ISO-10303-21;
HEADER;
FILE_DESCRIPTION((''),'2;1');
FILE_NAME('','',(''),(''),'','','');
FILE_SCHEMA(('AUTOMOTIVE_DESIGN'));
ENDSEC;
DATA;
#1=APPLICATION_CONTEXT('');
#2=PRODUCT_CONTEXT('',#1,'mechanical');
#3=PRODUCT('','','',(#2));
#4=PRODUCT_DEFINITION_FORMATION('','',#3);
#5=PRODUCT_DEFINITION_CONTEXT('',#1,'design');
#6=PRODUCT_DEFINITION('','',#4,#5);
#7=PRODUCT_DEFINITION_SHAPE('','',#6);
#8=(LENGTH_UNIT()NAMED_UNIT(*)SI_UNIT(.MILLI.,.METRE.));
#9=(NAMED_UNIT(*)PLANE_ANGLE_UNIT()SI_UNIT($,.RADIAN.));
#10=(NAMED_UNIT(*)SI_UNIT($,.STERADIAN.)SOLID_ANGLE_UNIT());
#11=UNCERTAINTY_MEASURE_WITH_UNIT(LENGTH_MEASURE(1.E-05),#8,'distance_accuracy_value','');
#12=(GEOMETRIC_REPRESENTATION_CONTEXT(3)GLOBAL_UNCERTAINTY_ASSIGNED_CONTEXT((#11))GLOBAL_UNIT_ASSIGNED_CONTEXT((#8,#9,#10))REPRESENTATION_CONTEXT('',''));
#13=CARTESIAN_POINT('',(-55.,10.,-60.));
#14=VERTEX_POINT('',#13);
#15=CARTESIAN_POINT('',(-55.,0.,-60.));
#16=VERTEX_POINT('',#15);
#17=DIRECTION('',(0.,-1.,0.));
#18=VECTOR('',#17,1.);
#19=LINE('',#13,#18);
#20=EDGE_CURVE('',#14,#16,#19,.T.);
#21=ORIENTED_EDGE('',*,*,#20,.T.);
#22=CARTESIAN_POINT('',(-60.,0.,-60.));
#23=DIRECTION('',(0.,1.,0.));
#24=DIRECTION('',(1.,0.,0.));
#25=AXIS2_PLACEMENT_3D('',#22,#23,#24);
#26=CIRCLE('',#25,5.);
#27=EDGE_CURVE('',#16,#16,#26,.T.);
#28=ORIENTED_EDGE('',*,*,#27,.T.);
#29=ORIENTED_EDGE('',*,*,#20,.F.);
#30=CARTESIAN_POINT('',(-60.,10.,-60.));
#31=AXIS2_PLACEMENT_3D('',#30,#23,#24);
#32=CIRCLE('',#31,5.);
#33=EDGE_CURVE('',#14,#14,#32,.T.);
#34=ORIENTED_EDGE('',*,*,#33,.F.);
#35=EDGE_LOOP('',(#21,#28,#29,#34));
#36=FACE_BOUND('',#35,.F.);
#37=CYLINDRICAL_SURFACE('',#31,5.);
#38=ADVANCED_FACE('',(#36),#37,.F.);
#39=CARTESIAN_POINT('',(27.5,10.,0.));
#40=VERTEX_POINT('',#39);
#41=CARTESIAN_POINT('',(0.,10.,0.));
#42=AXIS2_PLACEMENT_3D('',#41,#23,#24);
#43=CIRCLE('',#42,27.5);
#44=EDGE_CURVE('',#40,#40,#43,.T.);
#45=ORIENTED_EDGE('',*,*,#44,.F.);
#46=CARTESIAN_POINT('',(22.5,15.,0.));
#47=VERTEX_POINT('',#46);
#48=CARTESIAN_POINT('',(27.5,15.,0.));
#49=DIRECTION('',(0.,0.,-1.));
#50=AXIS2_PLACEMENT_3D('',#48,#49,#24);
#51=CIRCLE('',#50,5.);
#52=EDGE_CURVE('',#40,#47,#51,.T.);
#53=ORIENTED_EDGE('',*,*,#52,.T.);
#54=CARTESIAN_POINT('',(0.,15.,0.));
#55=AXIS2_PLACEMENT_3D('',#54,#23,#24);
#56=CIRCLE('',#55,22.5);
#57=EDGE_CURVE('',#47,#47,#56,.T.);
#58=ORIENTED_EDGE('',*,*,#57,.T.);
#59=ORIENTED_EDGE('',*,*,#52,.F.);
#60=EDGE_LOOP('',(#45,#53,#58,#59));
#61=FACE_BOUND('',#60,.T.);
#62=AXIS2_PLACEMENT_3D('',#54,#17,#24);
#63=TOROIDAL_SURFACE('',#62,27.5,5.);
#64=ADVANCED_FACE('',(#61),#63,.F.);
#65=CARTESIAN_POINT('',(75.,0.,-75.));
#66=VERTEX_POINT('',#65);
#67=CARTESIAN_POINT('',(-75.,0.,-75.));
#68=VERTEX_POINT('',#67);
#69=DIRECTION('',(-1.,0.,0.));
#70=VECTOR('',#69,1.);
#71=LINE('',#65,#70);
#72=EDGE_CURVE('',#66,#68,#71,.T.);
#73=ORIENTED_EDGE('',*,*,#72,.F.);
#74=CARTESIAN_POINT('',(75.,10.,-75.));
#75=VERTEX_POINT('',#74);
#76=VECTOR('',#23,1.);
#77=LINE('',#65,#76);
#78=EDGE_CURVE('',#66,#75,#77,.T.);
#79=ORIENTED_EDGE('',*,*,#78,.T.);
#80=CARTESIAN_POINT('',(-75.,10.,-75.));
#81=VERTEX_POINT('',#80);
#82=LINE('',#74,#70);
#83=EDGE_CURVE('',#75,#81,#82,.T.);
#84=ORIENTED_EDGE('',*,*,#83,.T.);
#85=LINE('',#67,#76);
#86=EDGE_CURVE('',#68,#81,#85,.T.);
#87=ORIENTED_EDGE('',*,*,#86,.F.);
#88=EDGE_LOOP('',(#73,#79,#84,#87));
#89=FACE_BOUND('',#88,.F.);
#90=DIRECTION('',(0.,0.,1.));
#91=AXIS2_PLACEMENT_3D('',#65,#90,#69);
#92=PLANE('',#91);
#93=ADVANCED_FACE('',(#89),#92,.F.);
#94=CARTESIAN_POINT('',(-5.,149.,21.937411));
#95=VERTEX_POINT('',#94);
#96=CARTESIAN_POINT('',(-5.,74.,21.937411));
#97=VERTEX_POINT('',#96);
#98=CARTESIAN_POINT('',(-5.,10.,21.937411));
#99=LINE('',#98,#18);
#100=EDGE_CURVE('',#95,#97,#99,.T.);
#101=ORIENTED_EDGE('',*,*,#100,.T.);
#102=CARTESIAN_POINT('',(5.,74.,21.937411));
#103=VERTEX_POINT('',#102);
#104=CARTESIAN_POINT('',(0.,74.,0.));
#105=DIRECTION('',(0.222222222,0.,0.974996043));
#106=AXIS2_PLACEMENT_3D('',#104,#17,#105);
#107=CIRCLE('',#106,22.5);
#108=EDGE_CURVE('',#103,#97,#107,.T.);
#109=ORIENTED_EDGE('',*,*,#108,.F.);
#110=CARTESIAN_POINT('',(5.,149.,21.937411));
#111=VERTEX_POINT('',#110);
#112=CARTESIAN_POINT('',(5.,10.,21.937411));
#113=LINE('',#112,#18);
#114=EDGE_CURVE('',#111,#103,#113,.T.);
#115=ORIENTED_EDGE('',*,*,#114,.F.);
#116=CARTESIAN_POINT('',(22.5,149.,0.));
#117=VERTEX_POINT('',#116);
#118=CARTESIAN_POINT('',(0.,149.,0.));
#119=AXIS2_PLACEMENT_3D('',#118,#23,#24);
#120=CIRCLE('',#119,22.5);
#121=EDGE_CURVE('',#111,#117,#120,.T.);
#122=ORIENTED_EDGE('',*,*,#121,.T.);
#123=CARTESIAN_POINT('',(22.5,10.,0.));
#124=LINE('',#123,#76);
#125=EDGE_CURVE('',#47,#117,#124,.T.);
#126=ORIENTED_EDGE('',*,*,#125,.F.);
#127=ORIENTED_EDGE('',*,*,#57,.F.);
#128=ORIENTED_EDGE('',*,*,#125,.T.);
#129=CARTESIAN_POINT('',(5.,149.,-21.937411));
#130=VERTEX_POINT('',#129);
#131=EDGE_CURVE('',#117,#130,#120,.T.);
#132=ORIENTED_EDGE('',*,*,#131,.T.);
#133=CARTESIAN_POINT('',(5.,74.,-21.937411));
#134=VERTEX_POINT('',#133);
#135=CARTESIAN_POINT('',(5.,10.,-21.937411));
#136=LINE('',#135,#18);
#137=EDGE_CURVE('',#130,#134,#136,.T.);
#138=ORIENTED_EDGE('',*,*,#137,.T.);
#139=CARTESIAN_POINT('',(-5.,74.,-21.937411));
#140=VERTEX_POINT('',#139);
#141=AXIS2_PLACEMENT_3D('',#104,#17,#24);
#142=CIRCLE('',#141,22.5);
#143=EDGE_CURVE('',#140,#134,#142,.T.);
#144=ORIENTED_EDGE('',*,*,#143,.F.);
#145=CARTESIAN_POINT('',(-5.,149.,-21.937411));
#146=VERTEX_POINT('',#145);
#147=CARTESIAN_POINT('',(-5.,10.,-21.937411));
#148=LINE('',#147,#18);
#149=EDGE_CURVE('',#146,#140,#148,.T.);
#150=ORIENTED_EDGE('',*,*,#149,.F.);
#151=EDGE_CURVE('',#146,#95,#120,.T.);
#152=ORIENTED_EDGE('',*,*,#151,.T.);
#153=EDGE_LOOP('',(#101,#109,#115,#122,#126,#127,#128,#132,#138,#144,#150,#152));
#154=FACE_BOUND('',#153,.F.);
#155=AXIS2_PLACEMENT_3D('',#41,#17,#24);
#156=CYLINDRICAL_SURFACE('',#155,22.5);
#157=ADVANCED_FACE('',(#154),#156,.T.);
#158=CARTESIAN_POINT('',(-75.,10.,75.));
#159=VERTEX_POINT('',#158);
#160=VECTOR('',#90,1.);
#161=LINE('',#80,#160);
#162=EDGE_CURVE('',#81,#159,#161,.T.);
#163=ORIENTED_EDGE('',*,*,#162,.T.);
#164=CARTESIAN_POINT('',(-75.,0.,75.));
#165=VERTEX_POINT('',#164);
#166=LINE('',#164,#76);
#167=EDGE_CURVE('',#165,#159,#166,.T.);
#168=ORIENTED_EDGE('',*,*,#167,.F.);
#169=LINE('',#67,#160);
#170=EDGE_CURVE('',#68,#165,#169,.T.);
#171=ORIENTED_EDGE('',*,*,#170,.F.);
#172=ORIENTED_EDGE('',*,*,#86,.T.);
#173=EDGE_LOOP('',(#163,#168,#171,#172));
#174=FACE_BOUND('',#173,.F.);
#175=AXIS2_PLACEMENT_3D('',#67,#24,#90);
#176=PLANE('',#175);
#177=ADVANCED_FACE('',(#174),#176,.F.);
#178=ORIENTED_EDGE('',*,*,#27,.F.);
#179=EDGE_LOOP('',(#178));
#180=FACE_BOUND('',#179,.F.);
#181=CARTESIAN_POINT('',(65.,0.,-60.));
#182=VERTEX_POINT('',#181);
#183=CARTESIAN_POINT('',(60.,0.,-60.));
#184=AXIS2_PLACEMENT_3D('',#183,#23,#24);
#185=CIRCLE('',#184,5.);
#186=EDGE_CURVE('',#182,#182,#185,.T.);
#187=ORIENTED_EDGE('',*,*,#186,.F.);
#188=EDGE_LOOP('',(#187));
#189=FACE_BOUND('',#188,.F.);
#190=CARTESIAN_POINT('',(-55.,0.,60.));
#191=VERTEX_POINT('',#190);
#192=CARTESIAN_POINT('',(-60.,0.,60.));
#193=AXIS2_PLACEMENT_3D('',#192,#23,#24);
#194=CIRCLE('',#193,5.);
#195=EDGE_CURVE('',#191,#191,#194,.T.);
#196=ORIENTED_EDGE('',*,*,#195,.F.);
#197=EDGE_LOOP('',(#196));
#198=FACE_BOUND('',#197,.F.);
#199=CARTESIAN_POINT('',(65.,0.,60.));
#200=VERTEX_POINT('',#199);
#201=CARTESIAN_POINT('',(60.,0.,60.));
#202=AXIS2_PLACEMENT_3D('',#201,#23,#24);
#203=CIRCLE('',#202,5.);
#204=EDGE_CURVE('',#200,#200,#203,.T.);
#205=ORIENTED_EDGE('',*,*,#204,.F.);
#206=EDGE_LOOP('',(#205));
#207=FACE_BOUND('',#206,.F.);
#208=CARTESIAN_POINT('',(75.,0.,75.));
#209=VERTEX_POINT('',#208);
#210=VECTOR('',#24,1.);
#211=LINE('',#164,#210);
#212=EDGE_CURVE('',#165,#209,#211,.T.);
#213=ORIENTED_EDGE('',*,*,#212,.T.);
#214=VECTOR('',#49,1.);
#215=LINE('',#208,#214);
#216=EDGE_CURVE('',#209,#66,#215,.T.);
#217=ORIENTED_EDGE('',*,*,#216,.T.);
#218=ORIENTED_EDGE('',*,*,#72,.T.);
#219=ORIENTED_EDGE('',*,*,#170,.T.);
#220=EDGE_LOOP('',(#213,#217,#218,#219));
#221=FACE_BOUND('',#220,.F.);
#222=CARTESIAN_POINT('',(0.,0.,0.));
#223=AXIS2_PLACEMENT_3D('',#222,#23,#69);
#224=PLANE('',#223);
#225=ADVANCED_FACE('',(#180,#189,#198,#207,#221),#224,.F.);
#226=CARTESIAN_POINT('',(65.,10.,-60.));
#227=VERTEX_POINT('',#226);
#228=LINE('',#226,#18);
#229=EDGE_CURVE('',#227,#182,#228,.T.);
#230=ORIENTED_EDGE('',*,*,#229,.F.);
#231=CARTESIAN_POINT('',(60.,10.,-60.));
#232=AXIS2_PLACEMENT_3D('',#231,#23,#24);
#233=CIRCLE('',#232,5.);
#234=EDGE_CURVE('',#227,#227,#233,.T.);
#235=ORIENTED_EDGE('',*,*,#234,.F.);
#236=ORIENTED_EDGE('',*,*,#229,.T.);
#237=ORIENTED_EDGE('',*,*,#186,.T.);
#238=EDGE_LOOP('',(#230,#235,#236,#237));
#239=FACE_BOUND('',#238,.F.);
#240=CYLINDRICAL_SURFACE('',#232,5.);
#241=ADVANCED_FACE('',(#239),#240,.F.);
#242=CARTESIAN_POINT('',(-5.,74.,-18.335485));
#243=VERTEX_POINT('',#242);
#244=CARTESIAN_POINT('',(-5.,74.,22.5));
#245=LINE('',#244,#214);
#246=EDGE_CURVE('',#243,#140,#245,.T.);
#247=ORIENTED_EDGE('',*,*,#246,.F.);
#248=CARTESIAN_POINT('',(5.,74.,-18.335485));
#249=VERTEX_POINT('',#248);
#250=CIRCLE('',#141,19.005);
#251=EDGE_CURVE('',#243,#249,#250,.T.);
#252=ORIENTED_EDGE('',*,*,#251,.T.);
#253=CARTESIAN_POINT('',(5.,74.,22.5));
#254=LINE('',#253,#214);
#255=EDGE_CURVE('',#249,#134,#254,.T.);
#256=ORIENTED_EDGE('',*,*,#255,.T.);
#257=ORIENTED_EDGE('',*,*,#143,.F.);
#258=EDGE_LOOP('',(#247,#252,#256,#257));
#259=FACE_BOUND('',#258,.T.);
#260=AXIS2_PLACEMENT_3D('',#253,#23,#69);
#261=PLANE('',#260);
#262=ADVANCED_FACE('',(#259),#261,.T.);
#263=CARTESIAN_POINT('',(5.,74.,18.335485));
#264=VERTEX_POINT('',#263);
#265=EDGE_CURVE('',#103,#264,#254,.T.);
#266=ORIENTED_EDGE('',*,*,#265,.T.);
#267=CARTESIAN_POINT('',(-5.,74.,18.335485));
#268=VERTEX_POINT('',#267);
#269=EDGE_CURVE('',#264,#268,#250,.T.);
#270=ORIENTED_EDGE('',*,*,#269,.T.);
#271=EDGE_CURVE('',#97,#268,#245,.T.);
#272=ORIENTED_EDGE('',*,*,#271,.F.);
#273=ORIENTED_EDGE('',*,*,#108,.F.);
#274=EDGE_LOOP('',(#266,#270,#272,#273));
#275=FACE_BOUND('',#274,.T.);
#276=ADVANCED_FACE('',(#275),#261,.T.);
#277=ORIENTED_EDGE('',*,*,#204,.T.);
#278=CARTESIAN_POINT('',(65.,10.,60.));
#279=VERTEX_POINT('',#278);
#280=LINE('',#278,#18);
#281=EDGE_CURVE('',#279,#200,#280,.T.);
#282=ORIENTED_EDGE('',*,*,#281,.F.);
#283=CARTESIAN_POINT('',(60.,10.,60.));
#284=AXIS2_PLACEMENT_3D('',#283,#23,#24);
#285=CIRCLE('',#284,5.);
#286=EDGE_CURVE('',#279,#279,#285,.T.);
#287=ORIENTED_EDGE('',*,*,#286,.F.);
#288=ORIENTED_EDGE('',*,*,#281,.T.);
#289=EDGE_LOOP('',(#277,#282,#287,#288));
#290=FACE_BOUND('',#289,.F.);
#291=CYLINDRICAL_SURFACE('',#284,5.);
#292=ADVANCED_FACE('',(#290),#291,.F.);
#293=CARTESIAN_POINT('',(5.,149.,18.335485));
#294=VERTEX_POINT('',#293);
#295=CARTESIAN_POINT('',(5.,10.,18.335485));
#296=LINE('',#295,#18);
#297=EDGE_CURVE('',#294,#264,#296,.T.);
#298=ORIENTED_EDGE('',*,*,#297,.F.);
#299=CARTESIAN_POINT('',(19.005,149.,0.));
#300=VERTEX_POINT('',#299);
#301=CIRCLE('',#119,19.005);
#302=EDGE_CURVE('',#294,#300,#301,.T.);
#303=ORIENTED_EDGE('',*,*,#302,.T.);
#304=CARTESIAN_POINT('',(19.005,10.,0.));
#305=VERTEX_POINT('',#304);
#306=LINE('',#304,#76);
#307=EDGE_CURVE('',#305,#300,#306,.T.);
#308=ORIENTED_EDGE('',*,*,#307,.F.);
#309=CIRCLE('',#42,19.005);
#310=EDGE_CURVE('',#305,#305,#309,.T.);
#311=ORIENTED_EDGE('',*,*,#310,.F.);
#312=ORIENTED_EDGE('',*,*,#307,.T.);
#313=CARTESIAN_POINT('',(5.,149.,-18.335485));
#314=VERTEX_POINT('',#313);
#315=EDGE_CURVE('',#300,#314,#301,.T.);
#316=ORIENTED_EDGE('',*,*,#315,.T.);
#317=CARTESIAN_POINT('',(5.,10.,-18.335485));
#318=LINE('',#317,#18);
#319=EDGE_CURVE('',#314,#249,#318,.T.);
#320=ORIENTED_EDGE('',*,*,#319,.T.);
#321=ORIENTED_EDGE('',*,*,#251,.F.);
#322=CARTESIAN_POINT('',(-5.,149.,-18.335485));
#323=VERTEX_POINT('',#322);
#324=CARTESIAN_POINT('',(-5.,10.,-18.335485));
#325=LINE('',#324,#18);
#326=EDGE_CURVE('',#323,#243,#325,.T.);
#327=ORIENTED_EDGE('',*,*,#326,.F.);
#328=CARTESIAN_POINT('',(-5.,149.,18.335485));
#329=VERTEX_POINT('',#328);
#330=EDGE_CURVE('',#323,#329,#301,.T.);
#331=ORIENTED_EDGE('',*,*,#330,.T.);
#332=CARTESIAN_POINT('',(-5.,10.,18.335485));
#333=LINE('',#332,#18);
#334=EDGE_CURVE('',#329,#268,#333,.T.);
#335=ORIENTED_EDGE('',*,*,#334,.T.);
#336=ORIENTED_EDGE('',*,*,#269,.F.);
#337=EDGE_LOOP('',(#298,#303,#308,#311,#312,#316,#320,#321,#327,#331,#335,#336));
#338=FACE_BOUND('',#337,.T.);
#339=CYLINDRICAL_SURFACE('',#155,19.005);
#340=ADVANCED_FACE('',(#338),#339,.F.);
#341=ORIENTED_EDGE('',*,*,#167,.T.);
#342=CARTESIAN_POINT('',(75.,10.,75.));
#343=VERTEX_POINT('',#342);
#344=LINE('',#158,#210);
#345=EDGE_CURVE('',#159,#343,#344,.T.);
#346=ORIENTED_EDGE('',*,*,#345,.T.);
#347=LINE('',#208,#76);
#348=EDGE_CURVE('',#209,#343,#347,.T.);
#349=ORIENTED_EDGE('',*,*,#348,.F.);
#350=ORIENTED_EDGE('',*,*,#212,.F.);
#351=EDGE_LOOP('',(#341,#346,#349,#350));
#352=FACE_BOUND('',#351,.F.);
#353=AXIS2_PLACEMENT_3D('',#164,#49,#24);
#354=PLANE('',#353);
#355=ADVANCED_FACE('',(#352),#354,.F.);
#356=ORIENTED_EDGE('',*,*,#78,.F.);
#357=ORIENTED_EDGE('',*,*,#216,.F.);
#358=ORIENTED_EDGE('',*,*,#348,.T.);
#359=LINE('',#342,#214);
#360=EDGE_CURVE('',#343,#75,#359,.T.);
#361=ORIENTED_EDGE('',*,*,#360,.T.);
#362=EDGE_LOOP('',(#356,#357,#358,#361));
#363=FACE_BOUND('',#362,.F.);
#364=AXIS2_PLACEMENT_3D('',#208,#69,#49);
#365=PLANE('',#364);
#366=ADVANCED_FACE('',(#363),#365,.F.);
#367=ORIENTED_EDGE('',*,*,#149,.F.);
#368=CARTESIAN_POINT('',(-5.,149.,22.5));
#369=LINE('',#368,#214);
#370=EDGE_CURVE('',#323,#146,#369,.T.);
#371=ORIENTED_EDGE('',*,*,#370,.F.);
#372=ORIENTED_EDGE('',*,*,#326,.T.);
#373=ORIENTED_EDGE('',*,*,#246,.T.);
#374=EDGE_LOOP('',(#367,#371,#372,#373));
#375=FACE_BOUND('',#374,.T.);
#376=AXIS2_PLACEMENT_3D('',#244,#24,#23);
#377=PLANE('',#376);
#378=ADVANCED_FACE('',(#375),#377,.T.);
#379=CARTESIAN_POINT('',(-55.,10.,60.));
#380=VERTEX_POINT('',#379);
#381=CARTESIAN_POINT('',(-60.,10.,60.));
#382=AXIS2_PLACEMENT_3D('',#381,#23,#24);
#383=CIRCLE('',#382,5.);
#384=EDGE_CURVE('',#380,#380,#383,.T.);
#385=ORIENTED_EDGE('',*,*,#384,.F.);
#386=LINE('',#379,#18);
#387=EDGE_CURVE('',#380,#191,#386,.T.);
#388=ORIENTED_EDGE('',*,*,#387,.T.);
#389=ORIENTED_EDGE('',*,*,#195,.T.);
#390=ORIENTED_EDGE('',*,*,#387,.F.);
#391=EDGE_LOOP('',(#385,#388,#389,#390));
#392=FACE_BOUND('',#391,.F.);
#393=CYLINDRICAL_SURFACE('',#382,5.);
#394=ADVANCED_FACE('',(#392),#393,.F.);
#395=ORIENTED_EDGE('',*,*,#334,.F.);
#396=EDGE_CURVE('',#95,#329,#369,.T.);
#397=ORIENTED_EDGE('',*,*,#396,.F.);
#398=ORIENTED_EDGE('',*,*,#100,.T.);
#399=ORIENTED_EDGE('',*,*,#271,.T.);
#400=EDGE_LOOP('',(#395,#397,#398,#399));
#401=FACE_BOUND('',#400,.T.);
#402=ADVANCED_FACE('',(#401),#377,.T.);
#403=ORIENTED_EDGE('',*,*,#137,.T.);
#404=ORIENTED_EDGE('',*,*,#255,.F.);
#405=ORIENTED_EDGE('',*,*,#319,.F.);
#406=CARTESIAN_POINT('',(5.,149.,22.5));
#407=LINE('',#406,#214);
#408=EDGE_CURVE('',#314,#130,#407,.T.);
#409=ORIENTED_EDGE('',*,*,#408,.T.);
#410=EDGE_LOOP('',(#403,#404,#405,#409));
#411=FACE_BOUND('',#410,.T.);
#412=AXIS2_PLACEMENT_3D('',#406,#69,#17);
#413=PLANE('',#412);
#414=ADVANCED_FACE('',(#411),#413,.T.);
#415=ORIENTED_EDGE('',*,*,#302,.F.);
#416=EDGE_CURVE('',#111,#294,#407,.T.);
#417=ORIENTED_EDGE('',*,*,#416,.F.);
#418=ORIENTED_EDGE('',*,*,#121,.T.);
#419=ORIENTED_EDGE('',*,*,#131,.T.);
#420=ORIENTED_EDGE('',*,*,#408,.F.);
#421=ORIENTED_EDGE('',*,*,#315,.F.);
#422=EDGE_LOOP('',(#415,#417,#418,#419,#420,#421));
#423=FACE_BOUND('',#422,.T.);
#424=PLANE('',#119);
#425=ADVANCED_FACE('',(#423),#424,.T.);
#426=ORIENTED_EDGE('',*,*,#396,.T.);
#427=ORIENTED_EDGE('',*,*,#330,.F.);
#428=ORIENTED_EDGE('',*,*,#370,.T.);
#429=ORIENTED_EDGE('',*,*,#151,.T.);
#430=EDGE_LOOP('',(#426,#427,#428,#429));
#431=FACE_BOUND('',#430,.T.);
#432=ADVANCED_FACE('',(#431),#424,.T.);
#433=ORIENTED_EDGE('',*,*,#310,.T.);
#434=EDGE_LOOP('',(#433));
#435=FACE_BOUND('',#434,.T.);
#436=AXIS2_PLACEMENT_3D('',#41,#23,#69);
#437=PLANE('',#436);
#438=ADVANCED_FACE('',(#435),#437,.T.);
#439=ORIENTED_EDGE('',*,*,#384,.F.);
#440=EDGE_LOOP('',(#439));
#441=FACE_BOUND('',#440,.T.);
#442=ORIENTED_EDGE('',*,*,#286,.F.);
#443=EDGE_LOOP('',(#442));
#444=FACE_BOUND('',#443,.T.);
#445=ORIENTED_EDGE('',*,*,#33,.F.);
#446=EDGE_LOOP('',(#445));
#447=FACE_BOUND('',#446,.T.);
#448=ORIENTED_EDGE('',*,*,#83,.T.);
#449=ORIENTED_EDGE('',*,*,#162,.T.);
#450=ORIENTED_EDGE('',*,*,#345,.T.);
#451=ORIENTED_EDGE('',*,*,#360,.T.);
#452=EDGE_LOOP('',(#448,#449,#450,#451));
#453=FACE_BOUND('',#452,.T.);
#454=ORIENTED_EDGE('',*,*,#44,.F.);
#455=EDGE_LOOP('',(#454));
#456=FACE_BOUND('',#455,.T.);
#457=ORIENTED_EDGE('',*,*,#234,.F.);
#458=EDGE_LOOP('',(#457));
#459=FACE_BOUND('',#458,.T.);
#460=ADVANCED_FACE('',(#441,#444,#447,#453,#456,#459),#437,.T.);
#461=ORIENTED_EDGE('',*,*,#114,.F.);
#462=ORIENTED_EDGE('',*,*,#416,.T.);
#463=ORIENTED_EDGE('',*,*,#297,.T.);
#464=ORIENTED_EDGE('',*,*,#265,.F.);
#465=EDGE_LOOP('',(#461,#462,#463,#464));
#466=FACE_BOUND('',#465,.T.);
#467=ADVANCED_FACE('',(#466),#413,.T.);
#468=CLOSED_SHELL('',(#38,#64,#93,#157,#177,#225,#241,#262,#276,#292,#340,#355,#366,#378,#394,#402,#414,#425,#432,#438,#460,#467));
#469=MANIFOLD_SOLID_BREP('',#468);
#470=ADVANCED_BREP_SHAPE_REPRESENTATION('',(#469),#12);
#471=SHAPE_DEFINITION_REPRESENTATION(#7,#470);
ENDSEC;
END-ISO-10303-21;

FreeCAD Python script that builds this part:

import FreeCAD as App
import Part
import Sketcher
from FreeCAD import Vector


def edges_at(feature, points):
    """Names of the edges that pass closest to the given points."""
    edges = feature.Shape.Edges
    near = lambda p: min(range(len(edges)), key=lambda i: edges[i].distToShape(Part.Vertex(*p))[0])
    return sorted({f"Edge{near(p) + 1}" for p in points})


def add_polygon(sketch, points):
    """Adds a closed chain of lines whose ends are joined by coincident constraints."""
    first, n = sketch.GeometryCount, len(points)
    for a, b in zip(points, points[1:] + points[:1]):
        sketch.addGeometry(Part.LineSegment(App.Vector(*a, 0), App.Vector(*b, 0)), False)
    for i in range(n):
        sketch.addConstraint(Sketcher.Constraint("Coincident", first + i, 2, first + (i + 1) % n, 1))

doc = App.newDocument("Part")
body = doc.addObject("PartDesign::Body", "Body")

# Sketch on XZ plane
sketch1 = doc.addObject("Sketcher::SketchObject", "Sketch")
body.addObject(sketch1)
sketch1.AttachmentSupport = (doc.XZ_Plane, [""])
sketch1.MapMode = "FlatFace"
add_polygon(sketch1, [(-75, -75), (-75, 75), (75, 75), (75, -75)])  # lines 0-3
sketch1.addConstraint(Sketcher.Constraint("Vertical", 0))
sketch1.addConstraint(Sketcher.Constraint("Horizontal", 1))
sketch1.addConstraint(Sketcher.Constraint("Vertical", 2))
sketch1.addConstraint(Sketcher.Constraint("Horizontal", 3))
sketch1.addConstraint(Sketcher.Constraint("Symmetric", 0, 2, 2, 2, -1, 1))
sketch1.addConstraint(Sketcher.Constraint("Equal", 3, 0))
sketch1.addConstraint(Sketcher.Constraint("DistanceX", 1, 1, 1, 2, 150.0))
pad1 = doc.addObject("PartDesign::Pad", "Pad")
body.addObject(pad1)
pad1.Profile = sketch1
pad1.Length = 10
pad1.Reversed = True

# Sketch on XZ plane
sketch2 = doc.addObject("Sketcher::SketchObject", "Sketch001")
body.addObject(sketch2)
sketch2.AttachmentSupport = (doc.XZ_Plane, [""])
sketch2.MapMode = "FlatFace"
sketch2.AttachmentOffset = App.Placement(Vector(0, 0, -10), App.Rotation())
sketch2.addGeometry(Part.Circle(Vector(-60, -60, 0), Vector(0, 0, 1), 5), False)
sketch2.addGeometry(Part.Circle(Vector(60, -60, 0), Vector(0, 0, 1), 5), False)
sketch2.addGeometry(Part.Circle(Vector(-60, 60, 0), Vector(0, 0, 1), 5), False)
sketch2.addGeometry(Part.Circle(Vector(60, 60, 0), Vector(0, 0, 1), 5), False)
sketch2.addConstraint(Sketcher.Constraint("Equal", 0, 1))
sketch2.addConstraint(Sketcher.Constraint("Equal", 1, 2))
sketch2.addConstraint(Sketcher.Constraint("Equal", 2, 3))
sketch2.addConstraint(Sketcher.Constraint("Symmetric", 1, 3, 2, 3, -1, 1))
sketch2.addConstraint(Sketcher.Constraint("Symmetric", 0, 3, 3, 3, -1, 1))
sketch2.addConstraint(Sketcher.Constraint("Symmetric", 0, 3, 1, 3, -2))
sketch2.addConstraint(Sketcher.Constraint("Diameter", 0, 10.0))
sketch2.addConstraint(Sketcher.Constraint("DistanceX", 0, 3, -1, 1, 60.0))
sketch2.addConstraint(Sketcher.Constraint("DistanceY", 0, 3, -1, 1, 60.0))
pocket1 = doc.addObject("PartDesign::Pocket", "Pocket")
body.addObject(pocket1)
pocket1.Profile = sketch2
pocket1.Type = "ThroughAll"
pocket1.Reversed = True

# Sketch on XZ plane
sketch3 = doc.addObject("Sketcher::SketchObject", "Sketch002")
body.addObject(sketch3)
sketch3.AttachmentSupport = (doc.XZ_Plane, [""])
sketch3.MapMode = "FlatFace"
sketch3.AttachmentOffset = App.Placement(Vector(0, 0, -10), App.Rotation())
sketch3.addGeometry(Part.Circle(Vector(0, 0, 0), Vector(0, 0, 1), 22.5), False)
sketch3.addGeometry(Part.Circle(Vector(0, 0, 0), Vector(0, 0, 1), 19.005), False)
sketch3.addConstraint(Sketcher.Constraint("Coincident", 0, 3, -1, 1))
sketch3.addConstraint(Sketcher.Constraint("Coincident", 1, 3, -1, 1))
sketch3.addConstraint(Sketcher.Constraint("Diameter", 0, 45.0))
sketch3.addConstraint(Sketcher.Constraint("Diameter", 1, 38.01))
pad2 = doc.addObject("PartDesign::Pad", "Pad001")
body.addObject(pad2)
pad2.Profile = sketch3
pad2.Length = 139
pad2.Reversed = True
doc.recompute()

fillet = doc.addObject("PartDesign::Fillet", "Fillet")
body.addObject(fillet)
fillet.Base = (pad2, edges_at(pad2, [(-22.5, 10, 0)]))
fillet.Radius = 5

# Sketch on XY plane
sketch4 = doc.addObject("Sketcher::SketchObject", "Sketch003")
body.addObject(sketch4)
sketch4.AttachmentSupport = (doc.XY_Plane, [""])
sketch4.MapMode = "FlatFace"
sketch4.AttachmentOffset = App.Placement(Vector(0, 0, 22.5), App.Rotation())
add_polygon(sketch4, [(5, 149), (-5, 149), (-5, 74), (5, 74)])  # lines 0-3
sketch4.addConstraint(Sketcher.Constraint("Horizontal", 0))
sketch4.addConstraint(Sketcher.Constraint("Vertical", 1))
sketch4.addConstraint(Sketcher.Constraint("Horizontal", 2))
sketch4.addConstraint(Sketcher.Constraint("Vertical", 3))
sketch4.addConstraint(Sketcher.Constraint("DistanceX", 0, 2, 0, 1, 10.0))
sketch4.addConstraint(Sketcher.Constraint("DistanceY", 1, 2, 1, 1, 75.0))
sketch4.addConstraint(Sketcher.Constraint("DistanceX", 0, 2, -1, 1, 5.0))
sketch4.addConstraint(Sketcher.Constraint("DistanceY", -1, 1, 0, 2, 149.0))
pocket2 = doc.addObject("PartDesign::Pocket", "Pocket001")
body.addObject(pocket2)
pocket2.Profile = sketch4
pocket2.Type = "ThroughAll"

doc.recompute()
